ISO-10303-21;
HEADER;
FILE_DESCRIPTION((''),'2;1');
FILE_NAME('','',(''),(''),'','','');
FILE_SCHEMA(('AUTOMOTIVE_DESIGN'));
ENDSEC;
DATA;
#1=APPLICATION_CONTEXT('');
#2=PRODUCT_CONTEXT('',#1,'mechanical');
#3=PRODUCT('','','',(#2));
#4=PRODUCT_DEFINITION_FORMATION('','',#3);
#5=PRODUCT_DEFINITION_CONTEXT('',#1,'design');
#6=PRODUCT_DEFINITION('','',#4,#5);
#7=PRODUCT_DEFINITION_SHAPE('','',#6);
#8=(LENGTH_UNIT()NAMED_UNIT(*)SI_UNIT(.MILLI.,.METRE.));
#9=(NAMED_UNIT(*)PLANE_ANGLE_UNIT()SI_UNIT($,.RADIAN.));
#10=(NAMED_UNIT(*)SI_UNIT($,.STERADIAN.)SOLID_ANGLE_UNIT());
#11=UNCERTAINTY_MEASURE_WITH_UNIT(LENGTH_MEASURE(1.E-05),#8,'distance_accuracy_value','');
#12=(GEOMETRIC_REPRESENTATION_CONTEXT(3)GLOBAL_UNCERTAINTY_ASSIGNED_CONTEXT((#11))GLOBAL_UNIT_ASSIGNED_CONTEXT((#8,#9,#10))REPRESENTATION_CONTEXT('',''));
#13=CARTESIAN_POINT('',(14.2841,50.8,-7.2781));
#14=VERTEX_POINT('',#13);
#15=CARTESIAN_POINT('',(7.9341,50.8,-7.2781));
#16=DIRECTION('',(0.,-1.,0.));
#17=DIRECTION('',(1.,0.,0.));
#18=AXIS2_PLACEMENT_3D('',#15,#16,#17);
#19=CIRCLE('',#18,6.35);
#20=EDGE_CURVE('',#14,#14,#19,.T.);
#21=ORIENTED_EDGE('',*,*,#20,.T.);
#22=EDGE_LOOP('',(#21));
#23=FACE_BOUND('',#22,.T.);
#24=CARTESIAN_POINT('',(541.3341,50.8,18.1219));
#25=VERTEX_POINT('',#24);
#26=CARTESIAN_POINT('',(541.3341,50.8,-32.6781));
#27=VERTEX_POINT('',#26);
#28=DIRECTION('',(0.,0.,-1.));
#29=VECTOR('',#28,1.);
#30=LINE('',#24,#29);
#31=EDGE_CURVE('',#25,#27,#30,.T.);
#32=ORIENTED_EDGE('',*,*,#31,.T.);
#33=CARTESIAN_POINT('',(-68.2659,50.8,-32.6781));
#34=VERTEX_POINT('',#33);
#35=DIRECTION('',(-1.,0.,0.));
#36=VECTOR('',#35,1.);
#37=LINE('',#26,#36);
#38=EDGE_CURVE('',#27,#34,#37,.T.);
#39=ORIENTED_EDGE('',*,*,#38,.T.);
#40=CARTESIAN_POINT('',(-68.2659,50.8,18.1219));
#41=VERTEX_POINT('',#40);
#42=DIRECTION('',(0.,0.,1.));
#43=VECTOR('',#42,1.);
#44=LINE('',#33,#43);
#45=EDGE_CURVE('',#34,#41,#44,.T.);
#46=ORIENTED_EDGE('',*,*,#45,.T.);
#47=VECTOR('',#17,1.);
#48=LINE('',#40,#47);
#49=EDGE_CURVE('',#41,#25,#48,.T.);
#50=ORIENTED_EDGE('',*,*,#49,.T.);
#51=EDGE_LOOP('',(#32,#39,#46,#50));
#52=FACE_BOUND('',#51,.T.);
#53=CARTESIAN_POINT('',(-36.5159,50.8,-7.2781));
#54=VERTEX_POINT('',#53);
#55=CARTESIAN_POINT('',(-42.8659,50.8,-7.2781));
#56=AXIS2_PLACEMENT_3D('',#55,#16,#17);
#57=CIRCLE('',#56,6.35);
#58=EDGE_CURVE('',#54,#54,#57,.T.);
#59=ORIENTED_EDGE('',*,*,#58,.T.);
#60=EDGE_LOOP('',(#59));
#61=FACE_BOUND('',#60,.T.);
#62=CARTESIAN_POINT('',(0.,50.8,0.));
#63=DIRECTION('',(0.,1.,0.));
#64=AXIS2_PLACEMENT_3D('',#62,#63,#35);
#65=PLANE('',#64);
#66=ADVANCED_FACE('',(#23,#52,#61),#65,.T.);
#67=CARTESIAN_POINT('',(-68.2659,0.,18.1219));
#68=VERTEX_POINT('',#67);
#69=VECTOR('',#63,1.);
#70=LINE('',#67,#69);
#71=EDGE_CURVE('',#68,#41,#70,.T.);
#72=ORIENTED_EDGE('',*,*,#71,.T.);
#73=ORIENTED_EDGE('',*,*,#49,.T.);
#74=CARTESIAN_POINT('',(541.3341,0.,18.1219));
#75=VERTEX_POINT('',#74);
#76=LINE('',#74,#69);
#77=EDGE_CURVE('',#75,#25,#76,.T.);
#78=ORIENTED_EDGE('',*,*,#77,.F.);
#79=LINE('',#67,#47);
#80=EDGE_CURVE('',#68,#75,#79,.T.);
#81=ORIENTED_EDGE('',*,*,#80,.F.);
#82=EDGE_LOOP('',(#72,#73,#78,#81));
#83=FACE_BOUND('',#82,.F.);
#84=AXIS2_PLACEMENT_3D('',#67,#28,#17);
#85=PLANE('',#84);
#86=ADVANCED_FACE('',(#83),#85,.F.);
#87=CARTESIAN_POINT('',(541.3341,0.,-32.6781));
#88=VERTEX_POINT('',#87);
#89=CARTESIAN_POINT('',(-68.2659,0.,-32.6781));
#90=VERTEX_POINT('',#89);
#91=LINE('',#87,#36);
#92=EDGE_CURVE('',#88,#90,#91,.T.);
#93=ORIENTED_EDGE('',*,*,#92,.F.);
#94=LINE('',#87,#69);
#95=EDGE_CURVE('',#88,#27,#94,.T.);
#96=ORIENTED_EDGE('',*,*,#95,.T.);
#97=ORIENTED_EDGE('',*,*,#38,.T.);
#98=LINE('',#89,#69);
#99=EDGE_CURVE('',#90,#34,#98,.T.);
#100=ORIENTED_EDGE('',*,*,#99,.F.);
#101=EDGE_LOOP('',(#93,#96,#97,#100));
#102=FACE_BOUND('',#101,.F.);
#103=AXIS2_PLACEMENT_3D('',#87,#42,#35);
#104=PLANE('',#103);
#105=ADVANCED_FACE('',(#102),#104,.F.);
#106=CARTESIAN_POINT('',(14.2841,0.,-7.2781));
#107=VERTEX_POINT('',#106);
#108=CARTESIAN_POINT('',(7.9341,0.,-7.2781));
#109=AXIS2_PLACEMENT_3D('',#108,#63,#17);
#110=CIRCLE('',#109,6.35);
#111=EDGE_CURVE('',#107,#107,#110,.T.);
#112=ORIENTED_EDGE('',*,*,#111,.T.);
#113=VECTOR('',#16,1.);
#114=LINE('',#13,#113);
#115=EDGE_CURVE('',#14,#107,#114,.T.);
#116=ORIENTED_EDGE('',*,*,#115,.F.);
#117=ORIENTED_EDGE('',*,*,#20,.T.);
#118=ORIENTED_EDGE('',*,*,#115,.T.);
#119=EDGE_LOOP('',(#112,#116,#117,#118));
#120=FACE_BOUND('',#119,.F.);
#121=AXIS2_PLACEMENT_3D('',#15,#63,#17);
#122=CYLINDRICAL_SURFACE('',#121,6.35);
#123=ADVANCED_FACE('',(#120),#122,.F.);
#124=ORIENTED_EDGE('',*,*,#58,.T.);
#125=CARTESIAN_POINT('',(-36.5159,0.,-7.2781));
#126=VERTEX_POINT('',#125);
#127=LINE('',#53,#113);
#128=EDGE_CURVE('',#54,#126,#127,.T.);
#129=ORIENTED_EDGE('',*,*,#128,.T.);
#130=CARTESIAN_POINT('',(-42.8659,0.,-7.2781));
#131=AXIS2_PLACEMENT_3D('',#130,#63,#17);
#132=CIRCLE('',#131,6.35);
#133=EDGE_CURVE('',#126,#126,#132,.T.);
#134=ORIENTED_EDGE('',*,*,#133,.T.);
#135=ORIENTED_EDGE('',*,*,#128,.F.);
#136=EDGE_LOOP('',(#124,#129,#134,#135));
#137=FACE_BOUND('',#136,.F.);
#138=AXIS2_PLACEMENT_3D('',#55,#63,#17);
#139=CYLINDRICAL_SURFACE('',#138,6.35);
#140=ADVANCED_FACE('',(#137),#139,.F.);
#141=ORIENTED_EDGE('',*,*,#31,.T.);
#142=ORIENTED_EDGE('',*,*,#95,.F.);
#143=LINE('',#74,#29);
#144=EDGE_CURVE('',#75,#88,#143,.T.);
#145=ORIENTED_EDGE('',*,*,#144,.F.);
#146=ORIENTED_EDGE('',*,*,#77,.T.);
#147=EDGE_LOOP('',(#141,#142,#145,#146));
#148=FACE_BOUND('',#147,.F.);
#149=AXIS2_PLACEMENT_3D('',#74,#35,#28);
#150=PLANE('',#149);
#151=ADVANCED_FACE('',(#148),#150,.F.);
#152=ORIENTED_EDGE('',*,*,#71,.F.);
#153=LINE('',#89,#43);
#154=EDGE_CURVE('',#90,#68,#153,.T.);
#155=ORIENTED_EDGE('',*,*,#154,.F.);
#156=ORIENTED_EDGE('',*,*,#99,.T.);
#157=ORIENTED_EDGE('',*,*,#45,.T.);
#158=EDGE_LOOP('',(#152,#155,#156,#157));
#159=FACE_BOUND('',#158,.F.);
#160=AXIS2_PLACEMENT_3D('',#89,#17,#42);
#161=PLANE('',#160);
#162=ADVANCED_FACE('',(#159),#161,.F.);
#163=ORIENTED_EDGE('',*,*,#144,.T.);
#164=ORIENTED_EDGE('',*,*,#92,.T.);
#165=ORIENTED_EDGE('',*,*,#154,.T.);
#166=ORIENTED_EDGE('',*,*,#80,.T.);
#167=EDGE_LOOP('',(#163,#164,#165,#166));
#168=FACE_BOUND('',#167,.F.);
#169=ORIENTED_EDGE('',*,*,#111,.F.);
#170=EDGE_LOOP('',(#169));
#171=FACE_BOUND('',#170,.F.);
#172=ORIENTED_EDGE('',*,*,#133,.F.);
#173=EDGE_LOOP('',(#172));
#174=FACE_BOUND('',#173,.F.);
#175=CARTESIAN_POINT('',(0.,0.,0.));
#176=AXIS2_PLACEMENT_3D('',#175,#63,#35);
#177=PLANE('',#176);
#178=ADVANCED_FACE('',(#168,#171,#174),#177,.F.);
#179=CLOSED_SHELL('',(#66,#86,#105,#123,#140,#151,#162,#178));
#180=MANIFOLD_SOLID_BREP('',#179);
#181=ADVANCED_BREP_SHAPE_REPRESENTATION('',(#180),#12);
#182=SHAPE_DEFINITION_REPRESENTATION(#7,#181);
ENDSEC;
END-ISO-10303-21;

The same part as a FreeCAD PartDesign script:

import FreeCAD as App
import Part
import Sketcher

V = App.Vector
Q = App.Units.Quantity

doc = App.newDocument("Part")
body = doc.addObject("PartDesign::Body", "Body")

# Sketch on XZ plane
sketch1 = doc.addObject("Sketcher::SketchObject", "Sketch")
body.addObject(sketch1)
sketch1.AttachmentSupport = (doc.XZ_Plane, [""])
sketch1.MapMode = "FlatFace"
sketch1.addGeometry([
    Part.LineSegment(V(-68.2659, -32.6781, 0), V(-68.2659, 18.1219, 0)),
    Part.LineSegment(V(-68.2659, 18.1219, 0), V(541.3341, 18.1219, 0)),
    Part.LineSegment(V(541.3341, 18.1219, 0), V(541.3341, -32.6781, 0)),
    Part.LineSegment(V(541.3341, -32.6781, 0), V(-68.2659, -32.6781, 0)),
], False)
sketch1.addConstraint([
    Sketcher.Constraint("Coincident", 0, 2, 1, 1),
    Sketcher.Constraint("Coincident", 1, 2, 2, 1),
    Sketcher.Constraint("Coincident", 2, 2, 3, 1),
    Sketcher.Constraint("Coincident", 3, 2, 0, 1),
    Sketcher.Constraint("Vertical", 0),
    Sketcher.Constraint("Horizontal", 1),
    Sketcher.Constraint("Vertical", 2),
    Sketcher.Constraint("Horizontal", 3),
    Sketcher.Constraint("DistanceX", 1, 1, 1, 2, Q("24 in")),
    Sketcher.Constraint("DistanceY", 0, 1, 0, 2, Q("2 in")),
    Sketcher.Constraint("DistanceX", 0, 2, -1, 1, 68.266),
    Sketcher.Constraint("DistanceY", -1, 1, 0, 2, 18.122),
])
pad1 = doc.addObject("PartDesign::Pad", "Pad")
body.addObject(pad1)
pad1.Profile = sketch1
pad1.Length = Q("2 in")
pad1.Reversed = True

# Sketch on XZ plane
sketch2 = doc.addObject("Sketcher::SketchObject", "Sketch001")
body.addObject(sketch2)
sketch2.AttachmentSupport = (doc.XZ_Plane, [""])
sketch2.MapMode = "FlatFace"
sketch2.AttachmentOffset = App.Placement(V(0, 0, -2 * 25.4), App.Rotation())
sketch2.addGeometry([
    Part.Circle(V(7.9341, -7.2781, 0), V(0, 0, 1), 6.35),
    Part.Circle(V(-42.8659, -7.2781, 0), V(0, 0, 1), 6.35),
], False)
sketch2.addConstraint([
    Sketcher.Constraint("Equal", 0, 1),
    Sketcher.Constraint("Horizontal", 0, 3, 1, 3),
    Sketcher.Constraint("Diameter", 0, Q("0.5 in")),
    Sketcher.Constraint("DistanceX", 1, 3, 0, 3, Q("2 in")),
    Sketcher.Constraint("DistanceX", -1, 1, 0, 3, 7.934),
    Sketcher.Constraint("DistanceY", 0, 3, -1, 1, 7.278),
])
pocket1 = doc.addObject("PartDesign::Pocket", "Pocket")
body.addObject(pocket1)
pocket1.Profile = sketch2
pocket1.Length = Q("2 in")
pocket1.Reversed = True

doc.recompute()
